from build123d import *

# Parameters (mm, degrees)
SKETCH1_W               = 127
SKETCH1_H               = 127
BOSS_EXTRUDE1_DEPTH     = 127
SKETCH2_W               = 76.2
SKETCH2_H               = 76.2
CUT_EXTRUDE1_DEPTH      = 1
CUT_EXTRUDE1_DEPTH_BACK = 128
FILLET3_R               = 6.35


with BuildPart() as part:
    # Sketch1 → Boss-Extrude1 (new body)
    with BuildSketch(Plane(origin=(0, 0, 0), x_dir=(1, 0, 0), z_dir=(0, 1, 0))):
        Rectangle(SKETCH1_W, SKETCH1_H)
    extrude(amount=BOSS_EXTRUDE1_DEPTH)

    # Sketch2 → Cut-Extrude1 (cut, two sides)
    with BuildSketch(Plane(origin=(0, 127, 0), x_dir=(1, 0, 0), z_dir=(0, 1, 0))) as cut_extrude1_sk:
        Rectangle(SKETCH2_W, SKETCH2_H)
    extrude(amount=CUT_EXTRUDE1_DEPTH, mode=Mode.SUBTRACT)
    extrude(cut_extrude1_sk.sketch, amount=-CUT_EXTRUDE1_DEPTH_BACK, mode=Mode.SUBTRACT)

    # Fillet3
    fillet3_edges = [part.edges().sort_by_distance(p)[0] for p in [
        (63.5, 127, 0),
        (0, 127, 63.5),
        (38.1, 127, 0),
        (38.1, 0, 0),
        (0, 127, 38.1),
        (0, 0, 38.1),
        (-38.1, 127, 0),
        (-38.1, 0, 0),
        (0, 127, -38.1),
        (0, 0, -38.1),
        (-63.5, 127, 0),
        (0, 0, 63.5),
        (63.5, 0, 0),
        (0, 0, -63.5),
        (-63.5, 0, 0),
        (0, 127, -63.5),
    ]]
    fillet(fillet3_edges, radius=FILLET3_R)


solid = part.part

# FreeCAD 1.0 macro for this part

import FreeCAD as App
import Part
import Sketcher
Q = App.Units.Quantity


def edges_at(feature, points):
    """Names of the edges that pass closest to the given points."""
    edges = feature.Shape.Edges
    near = lambda p: min(range(len(edges)), key=lambda i: edges[i].distToShape(Part.Vertex(*p))[0])
    return sorted({f"Edge{near(p) + 1}" for p in points})

doc = App.newDocument("Part")
params = doc.addObject("Spreadsheet::Sheet", "Params")
for row, (alias, value) in enumerate([
    ("sketch1_width", "5 in"),
    ("pad1_length", "5 in"),
    ("sketch2_width", "3 in"),
    ("fillet_radius", "0.25 in"),
], start=1):
    params.set(f"A{row}", alias)
    params.set(f"B{row}", "=" + value)
    params.setAlias(f"B{row}", alias)

body = doc.addObject("PartDesign::Body", "Body")

# Sketch on XZ plane
sketch1 = body.newObject("Sketcher::SketchObject", "Sketch")
sketch1.AttachmentSupport = (doc.getObject("XZ_Plane"), [""])
sketch1.MapMode = "FlatFace"
sketch1.addGeometry([
    Part.LineSegment(App.Vector(-64, -64, 0), App.Vector(-64, 64, 0)),
    Part.LineSegment(App.Vector(-64, 64, 0), App.Vector(64, 64, 0)),
    Part.LineSegment(App.Vector(64, 64, 0), App.Vector(64, -64, 0)),
    Part.LineSegment(App.Vector(64, -64, 0), App.Vector(-64, -64, 0)),
], False)
sketch1.addConstraint([
    Sketcher.Constraint("Coincident", 0, 2, 1, 1),
    Sketcher.Constraint("Coincident", 1, 2, 2, 1),
    Sketcher.Constraint("Coincident", 2, 2, 3, 1),
    Sketcher.Constraint("Coincident", 3, 2, 0, 1),
    Sketcher.Constraint("Vertical", 0),
    Sketcher.Constraint("Horizontal", 1),
    Sketcher.Constraint("Vertical", 2),
    Sketcher.Constraint("Horizontal", 3),
    Sketcher.Constraint("Symmetric", 0, 2, 2, 2, -1, 1),
    Sketcher.Constraint("Equal", 3, 0),
    Sketcher.Constraint("DistanceX", 1, 1, 1, 2, Q("5 in")),
])
sketch1.setExpression("Constraints[10]", "Params.sketch1_width")
pad1 = body.newObject("PartDesign::Pad", "Pad")
pad1.Profile = sketch1
pad1.setExpression("Length", "Params.pad1_length")
pad1.Reversed = True

# Sketch on XZ plane
sketch2 = body.newObject("Sketcher::SketchObject", "Sketch001")
sketch2.AttachmentSupport = (doc.getObject("XZ_Plane"), [""])
sketch2.MapMode = "FlatFace"
sketch2.AttachmentOffset = App.Placement(App.Vector(0, 0, -5 * 25.4), App.Rotation())
sketch2.addGeometry([
    Part.LineSegment(App.Vector(-38, -38, 0), App.Vector(-38, 38, 0)),
    Part.LineSegment(App.Vector(-38, 38, 0), App.Vector(38, 38, 0)),
    Part.LineSegment(App.Vector(38, 38, 0), App.Vector(38, -38, 0)),
    Part.LineSegment(App.Vector(38, -38, 0), App.Vector(-38, -38, 0)),
], False)
sketch2.addConstraint([
    Sketcher.Constraint("Coincident", 0, 2, 1, 1),
    Sketcher.Constraint("Coincident", 1, 2, 2, 1),
    Sketcher.Constraint("Coincident", 2, 2, 3, 1),
    Sketcher.Constraint("Coincident", 3, 2, 0, 1),
    Sketcher.Constraint("Vertical", 0),
    Sketcher.Constraint("Horizontal", 1),
    Sketcher.Constraint("Vertical", 2),
    Sketcher.Constraint("Horizontal", 3),
    Sketcher.Constraint("Symmetric", 0, 2, 2, 2, -1, 1),
    Sketcher.Constraint("Equal", 3, 0),
    Sketcher.Constraint("DistanceX", 1, 1, 1, 2, Q("3 in")),
])
sketch2.setExpression("Constraints[10]", "Params.sketch2_width")
pocket1 = body.newObject("PartDesign::Pocket", "Pocket")
pocket1.Profile = sketch2
pocket1.Type = "ThroughAll"
pocket1.Midplane = True
doc.recompute()

fillet = body.newObject("PartDesign::Fillet", "Fillet")
fillet.Base = (pocket1, edges_at(pocket1, [
    (63.5, 127, 0),
    (0, 127, 63.5),
    (38.1, 127, 0),
    (38.1, 0, 0),
    (0, 127, 38.1),
    (0, 0, 38.1),
    (-38.1, 127, 0),
    (-38.1, 0, 0),
    (0, 127, -38.1),
    (0, 0, -38.1),
    (-63.5, 127, 0),
    (0, 0, 63.5),
    (63.5, 0, 0),
    (0, 0, -63.5),
    (-63.5, 0, 0),
    (0, 127, -63.5),
]))
fillet.setExpression("Radius", "Params.fillet_radius")

doc.recompute()
